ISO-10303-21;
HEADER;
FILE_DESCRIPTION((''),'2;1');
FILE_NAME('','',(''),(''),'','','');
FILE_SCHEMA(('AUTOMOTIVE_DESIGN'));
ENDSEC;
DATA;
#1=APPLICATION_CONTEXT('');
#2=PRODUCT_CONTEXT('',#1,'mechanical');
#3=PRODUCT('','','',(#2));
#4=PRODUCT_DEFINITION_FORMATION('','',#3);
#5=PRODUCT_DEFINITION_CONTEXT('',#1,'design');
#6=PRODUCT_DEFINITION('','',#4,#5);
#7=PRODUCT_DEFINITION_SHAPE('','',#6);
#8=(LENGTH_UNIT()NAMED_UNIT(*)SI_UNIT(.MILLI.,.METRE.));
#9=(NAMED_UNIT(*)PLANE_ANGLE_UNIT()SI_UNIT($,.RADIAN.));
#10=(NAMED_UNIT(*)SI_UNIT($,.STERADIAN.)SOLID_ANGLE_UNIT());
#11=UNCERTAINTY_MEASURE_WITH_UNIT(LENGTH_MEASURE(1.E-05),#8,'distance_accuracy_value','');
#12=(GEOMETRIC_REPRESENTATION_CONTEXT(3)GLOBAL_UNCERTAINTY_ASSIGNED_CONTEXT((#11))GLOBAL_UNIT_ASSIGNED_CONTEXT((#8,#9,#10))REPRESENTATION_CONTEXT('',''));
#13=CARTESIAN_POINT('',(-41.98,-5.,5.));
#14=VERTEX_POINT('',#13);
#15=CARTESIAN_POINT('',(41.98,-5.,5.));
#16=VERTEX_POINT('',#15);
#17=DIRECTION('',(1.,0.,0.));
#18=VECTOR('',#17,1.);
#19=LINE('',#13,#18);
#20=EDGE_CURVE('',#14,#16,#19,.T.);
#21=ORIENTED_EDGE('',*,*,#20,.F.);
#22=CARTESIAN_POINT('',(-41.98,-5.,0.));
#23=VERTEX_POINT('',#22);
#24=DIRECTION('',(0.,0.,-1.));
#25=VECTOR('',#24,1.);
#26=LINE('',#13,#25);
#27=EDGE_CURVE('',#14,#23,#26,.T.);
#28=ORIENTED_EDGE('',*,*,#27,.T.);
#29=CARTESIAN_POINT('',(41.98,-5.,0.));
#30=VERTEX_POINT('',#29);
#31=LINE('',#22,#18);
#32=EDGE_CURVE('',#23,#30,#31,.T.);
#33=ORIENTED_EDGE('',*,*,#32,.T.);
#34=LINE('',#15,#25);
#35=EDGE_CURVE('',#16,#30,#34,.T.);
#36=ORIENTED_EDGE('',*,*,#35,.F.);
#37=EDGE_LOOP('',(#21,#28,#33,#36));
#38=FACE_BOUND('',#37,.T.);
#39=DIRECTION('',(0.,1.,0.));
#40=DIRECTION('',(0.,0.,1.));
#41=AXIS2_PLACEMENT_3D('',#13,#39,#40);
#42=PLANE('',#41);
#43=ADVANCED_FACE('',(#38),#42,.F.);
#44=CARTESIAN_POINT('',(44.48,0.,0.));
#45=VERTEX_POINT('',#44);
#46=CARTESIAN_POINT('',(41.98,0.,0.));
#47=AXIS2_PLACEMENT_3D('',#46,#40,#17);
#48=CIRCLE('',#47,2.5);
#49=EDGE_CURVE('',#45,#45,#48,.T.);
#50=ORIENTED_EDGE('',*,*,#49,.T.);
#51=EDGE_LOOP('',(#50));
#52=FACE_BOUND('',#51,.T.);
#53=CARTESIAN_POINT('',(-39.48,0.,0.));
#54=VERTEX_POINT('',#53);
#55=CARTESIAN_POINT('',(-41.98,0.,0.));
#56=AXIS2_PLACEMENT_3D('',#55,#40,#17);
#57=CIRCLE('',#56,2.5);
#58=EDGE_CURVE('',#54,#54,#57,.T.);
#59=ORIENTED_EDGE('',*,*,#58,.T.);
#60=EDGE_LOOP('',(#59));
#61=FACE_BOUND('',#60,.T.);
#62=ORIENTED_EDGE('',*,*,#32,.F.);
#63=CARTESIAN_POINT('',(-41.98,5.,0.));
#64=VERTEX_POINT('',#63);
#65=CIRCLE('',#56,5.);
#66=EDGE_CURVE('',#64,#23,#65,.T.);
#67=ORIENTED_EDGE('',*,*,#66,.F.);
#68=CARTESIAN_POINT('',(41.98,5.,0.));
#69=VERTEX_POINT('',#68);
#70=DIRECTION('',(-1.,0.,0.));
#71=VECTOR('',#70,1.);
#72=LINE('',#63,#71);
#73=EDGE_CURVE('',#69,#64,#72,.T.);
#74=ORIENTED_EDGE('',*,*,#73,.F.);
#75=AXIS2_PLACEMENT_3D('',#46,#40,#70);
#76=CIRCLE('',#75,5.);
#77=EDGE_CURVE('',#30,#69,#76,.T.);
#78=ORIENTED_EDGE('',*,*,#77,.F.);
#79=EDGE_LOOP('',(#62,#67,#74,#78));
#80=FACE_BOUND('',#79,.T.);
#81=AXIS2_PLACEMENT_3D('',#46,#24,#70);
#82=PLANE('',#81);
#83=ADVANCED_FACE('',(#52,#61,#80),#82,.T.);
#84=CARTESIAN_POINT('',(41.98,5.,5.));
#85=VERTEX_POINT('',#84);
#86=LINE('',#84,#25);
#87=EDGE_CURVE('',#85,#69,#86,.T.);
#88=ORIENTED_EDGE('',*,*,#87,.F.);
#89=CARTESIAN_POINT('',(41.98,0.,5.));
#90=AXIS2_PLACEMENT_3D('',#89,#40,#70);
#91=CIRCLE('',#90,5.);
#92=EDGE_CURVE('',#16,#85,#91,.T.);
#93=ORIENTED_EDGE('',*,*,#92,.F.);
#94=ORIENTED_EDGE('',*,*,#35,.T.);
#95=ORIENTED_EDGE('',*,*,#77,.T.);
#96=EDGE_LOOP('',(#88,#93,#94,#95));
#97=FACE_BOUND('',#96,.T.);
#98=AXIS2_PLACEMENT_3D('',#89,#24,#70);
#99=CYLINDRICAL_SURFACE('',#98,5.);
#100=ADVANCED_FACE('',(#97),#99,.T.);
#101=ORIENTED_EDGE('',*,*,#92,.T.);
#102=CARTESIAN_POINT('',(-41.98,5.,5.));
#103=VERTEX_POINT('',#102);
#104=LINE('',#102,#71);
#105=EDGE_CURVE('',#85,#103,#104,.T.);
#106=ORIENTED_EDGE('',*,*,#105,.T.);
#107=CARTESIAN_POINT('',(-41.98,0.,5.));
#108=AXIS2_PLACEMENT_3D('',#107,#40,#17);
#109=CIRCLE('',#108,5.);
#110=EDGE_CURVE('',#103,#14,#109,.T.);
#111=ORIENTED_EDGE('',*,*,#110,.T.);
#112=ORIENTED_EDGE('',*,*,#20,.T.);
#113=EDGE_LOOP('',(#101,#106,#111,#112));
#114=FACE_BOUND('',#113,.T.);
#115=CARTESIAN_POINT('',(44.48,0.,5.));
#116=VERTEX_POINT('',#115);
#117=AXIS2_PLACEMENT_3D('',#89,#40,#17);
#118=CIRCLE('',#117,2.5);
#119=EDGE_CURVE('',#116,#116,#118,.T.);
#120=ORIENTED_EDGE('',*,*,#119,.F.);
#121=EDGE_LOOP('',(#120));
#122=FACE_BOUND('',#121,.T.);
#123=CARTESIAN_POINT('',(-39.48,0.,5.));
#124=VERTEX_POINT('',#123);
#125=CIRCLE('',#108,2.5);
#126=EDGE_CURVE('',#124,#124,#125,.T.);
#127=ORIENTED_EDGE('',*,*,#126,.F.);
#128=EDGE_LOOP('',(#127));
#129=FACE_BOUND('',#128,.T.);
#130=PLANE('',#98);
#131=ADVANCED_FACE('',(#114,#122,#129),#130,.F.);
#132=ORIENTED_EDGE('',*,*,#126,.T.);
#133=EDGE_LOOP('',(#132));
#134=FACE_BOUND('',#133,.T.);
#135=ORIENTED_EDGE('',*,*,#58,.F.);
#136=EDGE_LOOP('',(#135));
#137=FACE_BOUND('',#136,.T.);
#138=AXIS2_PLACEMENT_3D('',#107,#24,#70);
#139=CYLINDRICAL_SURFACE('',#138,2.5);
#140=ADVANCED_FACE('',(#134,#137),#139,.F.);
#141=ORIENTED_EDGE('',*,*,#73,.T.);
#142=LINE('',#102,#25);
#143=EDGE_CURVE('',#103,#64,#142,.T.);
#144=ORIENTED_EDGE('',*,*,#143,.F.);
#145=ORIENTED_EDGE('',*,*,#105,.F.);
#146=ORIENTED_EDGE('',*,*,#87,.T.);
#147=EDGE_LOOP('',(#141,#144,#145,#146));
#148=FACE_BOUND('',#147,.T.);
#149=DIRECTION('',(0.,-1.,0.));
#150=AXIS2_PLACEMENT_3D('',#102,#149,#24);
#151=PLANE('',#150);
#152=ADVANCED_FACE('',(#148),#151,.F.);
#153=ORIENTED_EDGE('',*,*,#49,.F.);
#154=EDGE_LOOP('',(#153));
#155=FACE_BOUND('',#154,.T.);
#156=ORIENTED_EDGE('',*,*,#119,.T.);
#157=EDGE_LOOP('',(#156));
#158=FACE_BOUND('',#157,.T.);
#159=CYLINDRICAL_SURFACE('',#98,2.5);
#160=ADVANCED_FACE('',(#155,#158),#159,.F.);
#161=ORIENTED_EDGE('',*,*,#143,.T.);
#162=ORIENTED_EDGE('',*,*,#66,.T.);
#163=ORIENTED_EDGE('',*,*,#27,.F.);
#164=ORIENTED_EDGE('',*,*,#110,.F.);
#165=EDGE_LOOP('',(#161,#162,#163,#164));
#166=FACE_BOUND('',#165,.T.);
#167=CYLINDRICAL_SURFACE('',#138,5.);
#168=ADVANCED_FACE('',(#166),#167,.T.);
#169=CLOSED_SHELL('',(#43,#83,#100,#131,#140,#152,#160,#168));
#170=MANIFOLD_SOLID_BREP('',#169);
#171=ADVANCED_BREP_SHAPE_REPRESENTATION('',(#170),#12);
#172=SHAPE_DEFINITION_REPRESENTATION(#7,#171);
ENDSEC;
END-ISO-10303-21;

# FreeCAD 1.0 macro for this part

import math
import FreeCAD as App
import Part
import Sketcher

V = App.Vector

doc = App.newDocument("Part")
body = doc.addObject("PartDesign::Body", "Body")

# Sketch on XY plane
sketch1 = body.newObject("Sketcher::SketchObject", "Sketch")
sketch1.AttachmentSupport = (doc.getObject("XY_Plane"), [""])
sketch1.MapMode = "FlatFace"
sketch1.addGeometry(Part.LineSegment(V(41.98, 5, 0), V(-41.98, 5, 0)), False)
sketch1.addGeometry(Part.ArcOfCircle(Part.Circle(V(-41.98, 0, 0), V(0, 0, 1), 5), math.radians(90), math.radians(270)), False)
sketch1.addGeometry(Part.LineSegment(V(-41.98, -5, 0), V(41.98, -5, 0)), False)
sketch1.addGeometry(Part.ArcOfCircle(Part.Circle(V(41.98, 0, 0), V(0, 0, 1), 5), math.radians(-90), math.radians(90)), False)
sketch1.addGeometry(Part.Circle(V(41.98, 0, 0), V(0, 0, 1), 2.5), False)
sketch1.addGeometry(Part.Circle(V(-41.98, 0, 0), V(0, 0, 1), 2.5), False)
sketch1.addConstraint(Sketcher.Constraint("Tangent", 0, 2, 1, 1))
sketch1.addConstraint(Sketcher.Constraint("Tangent", 1, 2, 2, 1))
sketch1.addConstraint(Sketcher.Constraint("Tangent", 2, 2, 3, 1))
sketch1.addConstraint(Sketcher.Constraint("Tangent", 3, 2, 0, 1))
sketch1.addConstraint(Sketcher.Constraint("Horizontal", 0))
sketch1.addConstraint(Sketcher.Constraint("Horizontal", 2))
sketch1.addConstraint(Sketcher.Constraint("Coincident", 4, 3, 3, 3))
sketch1.addConstraint(Sketcher.Constraint("Coincident", 5, 3, 1, 3))
sketch1.addConstraint(Sketcher.Constraint("Equal", 4, 5))
sketch1.addConstraint(Sketcher.Constraint("Symmetric", 1, 3, 3, 3, -1, 1))
sketch1.addConstraint(Sketcher.Constraint("Diameter", 4, 5.0))
sketch1.addConstraint(Sketcher.Constraint("Radius", 1, 5.0))
sketch1.addConstraint(Sketcher.Constraint("DistanceX", 0, 2, 0, 1, 83.96))
pad1 = body.newObject("PartDesign::Pad", "Pad")
pad1.Profile = sketch1
pad1.Length = 5

doc.recompute()
